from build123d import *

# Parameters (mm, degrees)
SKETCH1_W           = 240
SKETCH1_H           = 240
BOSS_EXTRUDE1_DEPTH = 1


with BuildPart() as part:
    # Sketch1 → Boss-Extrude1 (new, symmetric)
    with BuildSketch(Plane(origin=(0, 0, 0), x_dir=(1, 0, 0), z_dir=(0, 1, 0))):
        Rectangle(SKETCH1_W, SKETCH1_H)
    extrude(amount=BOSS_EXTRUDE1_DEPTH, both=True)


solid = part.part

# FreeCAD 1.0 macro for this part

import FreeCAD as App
import Part
import Sketcher
from FreeCAD import Vector
Q = App.Units.Quantity


def add_polygon(sketch, points):
    """Adds a closed chain of lines whose ends are joined by coincident constraints."""
    first, n = sketch.GeometryCount, len(points)
    for a, b in zip(points, points[1:] + points[:1]):
        sketch.addGeometry(Part.LineSegment(App.Vector(*a, 0), App.Vector(*b, 0)), False)
    for i in range(n):
        sketch.addConstraint(Sketcher.Constraint("Coincident", first + i, 2, first + (i + 1) % n, 1))

doc = App.newDocument("Part")
params = doc.addObject("Spreadsheet::Sheet", "Params")
for row, (alias, value) in enumerate([
    ("sketch1_width", "240 mm"),
    ("pad1_length", "2 mm"),
], start=1):
    params.set(f"A{row}", alias)
    params.set(f"B{row}", "=" + value)
    params.setAlias(f"B{row}", alias)

body = doc.addObject("PartDesign::Body", "Body")

# Sketch on XZ plane
sketch1 = body.newObject("Sketcher::SketchObject", "Sketch")
sketch1.AttachmentSupport = (doc.getObject("XZ_Plane"), [""])
sketch1.MapMode = "FlatFace"
add_polygon(sketch1, [(-120, -120), (-120, 120), (120, 120), (120, -120)])  # lines 0-3
sketch1.addConstraint([
    Sketcher.Constraint("Vertical", 0),
    Sketcher.Constraint("Horizontal", 1),
    Sketcher.Constraint("Vertical", 2),
    Sketcher.Constraint("Horizontal", 3),
    Sketcher.Constraint("Symmetric", 0, 2, 2, 2, -1, 1),
    Sketcher.Constraint("Equal", 3, 0),
    Sketcher.Constraint("DistanceX", 1, 1, 1, 2, Q("240 mm")),
])
sketch1.setExpression("Constraints[10]", "Params.sketch1_width")
pad1 = body.newObject("PartDesign::Pad", "Pad")
pad1.Profile = sketch1
pad1.setExpression("Length", "Params.pad1_length")
pad1.Midplane = True

doc.recompute()
